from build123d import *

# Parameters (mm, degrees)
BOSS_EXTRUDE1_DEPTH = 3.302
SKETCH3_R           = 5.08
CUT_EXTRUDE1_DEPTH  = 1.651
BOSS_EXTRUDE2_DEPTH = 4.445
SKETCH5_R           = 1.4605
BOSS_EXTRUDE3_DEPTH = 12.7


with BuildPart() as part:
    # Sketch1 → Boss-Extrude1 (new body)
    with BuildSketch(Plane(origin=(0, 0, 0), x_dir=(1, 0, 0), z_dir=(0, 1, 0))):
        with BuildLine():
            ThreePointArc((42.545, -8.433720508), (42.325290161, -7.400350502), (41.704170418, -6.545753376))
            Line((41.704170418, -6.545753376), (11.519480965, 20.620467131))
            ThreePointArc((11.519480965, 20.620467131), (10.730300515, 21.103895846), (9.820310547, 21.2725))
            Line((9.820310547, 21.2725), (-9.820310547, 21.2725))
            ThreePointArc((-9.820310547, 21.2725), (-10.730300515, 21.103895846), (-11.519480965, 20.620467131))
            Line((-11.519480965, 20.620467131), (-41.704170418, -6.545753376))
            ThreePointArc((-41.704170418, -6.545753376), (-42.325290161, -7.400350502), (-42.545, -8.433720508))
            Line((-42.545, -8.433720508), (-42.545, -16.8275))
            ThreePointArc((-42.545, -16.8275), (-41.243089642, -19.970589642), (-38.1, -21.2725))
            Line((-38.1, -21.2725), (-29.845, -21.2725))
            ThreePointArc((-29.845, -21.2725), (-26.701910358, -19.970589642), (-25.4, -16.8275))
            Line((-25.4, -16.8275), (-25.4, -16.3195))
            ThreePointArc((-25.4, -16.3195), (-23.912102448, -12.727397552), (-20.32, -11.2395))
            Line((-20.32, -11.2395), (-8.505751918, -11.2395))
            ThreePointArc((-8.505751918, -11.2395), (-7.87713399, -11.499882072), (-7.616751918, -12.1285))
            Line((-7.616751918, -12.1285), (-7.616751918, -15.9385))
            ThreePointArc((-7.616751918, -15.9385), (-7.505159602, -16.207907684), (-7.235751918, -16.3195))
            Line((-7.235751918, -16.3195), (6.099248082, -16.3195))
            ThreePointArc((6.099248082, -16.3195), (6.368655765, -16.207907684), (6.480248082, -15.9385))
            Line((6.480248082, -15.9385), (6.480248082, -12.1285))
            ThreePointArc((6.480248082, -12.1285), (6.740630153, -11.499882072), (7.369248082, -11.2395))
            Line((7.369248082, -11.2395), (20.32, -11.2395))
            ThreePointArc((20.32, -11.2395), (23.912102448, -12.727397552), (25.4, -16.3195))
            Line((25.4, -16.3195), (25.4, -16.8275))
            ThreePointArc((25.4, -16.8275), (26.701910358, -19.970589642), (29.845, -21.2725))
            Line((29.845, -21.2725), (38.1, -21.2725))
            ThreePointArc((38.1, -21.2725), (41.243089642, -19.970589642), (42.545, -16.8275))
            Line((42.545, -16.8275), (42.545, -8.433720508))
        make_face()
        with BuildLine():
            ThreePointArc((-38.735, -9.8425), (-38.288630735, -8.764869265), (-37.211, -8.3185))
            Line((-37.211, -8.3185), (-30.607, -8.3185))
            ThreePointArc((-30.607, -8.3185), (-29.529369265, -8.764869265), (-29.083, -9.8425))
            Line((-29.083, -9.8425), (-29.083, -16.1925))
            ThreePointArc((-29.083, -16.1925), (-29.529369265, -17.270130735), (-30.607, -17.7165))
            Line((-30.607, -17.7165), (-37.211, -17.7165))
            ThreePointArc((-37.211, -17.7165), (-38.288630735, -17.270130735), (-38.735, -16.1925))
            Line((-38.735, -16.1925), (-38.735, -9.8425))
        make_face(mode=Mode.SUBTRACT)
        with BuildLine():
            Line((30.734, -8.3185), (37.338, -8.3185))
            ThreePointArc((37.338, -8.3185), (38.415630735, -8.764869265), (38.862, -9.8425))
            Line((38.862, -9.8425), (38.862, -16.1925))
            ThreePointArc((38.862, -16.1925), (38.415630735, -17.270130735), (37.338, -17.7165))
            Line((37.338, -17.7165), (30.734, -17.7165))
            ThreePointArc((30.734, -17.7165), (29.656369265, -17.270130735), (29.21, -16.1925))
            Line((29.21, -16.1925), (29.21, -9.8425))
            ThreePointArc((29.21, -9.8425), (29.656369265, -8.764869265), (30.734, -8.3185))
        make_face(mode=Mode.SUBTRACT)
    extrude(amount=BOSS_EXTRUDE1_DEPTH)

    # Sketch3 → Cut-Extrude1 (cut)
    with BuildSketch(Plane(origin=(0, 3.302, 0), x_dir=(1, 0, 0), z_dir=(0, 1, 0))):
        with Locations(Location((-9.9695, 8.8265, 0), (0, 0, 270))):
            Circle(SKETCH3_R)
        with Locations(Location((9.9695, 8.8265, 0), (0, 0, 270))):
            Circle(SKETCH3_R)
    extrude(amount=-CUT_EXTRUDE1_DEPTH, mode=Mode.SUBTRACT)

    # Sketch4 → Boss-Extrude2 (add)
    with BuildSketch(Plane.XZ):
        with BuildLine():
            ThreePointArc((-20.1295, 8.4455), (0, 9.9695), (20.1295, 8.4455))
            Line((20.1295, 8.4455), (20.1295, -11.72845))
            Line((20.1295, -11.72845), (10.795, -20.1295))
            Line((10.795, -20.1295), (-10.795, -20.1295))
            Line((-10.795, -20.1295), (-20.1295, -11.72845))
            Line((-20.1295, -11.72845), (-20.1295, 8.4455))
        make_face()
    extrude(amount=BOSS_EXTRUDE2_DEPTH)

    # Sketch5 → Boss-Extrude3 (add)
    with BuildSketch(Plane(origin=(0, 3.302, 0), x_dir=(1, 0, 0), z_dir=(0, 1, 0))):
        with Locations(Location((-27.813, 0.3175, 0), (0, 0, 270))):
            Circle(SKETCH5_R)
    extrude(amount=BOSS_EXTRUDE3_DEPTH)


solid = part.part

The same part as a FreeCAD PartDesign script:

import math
import FreeCAD as App
import Part
import Sketcher

V = App.Vector
Q = App.Units.Quantity

doc = App.newDocument("Part")
body = doc.addObject("PartDesign::Body", "Body")

sketch1 = body.newObject("Sketcher::SketchObject", "Sketch")
sketch1.AttachmentSupport = (doc.getObject("XZ_Plane"), [""])
sketch1.MapMode = "FlatFace"
sketch1.addGeometry(Part.ArcOfCircle(Part.Circle(V(40.01, 8.43, 0), V(0, 0, 1), 2.54), math.radians(-48), math.radians(0)), False)
sketch1.addGeometry(Part.LineSegment(V(41.7, 6.55, 0), V(11.52, -20.62, 0)), False)
sketch1.addGeometry(Part.ArcOfCircle(Part.Circle(V(9.82, -18.73, 0), V(0, 0, 1), 2.54), math.radians(-90), math.radians(-48)), False)
sketch1.addGeometry(Part.LineSegment(V(9.82, -21.27, 0), V(-9.82, -21.27, 0)), False)
sketch1.addGeometry(Part.ArcOfCircle(Part.Circle(V(-9.82, -18.73, 0), V(0, 0, 1), 2.54), math.radians(-132), math.radians(-90)), False)
sketch1.addGeometry(Part.LineSegment(V(-11.52, -20.62, 0), V(-41.7, 6.55, 0)), False)
sketch1.addGeometry(Part.ArcOfCircle(Part.Circle(V(-40.01, 8.43, 0), V(0, 0, 1), 2.54), math.radians(180), math.radians(228)), False)
sketch1.addGeometry(Part.LineSegment(V(-42.55, 8.43, 0), V(-42.55, 16.83, 0)), False)
sketch1.addGeometry(Part.ArcOfCircle(Part.Circle(V(-38.1, 16.83, 0), V(0, 0, 1), 4.45), math.radians(90), math.radians(180)), False)
sketch1.addGeometry(Part.LineSegment(V(-38.1, 21.27, 0), V(-29.84, 21.27, 0)), False)
sketch1.addGeometry(Part.ArcOfCircle(Part.Circle(V(-29.85, 16.83, 0), V(0, 0, 1), 4.45), math.radians(0), math.radians(90)), False)
sketch1.addGeometry(Part.LineSegment(V(-25.4, 16.83, 0), V(-25.4, 16.32, 0)), False)
sketch1.addGeometry(Part.ArcOfCircle(Part.Circle(V(-20.32, 16.32, 0), V(0, 0, 1), 5.08), math.radians(-180), math.radians(-90)), False)
sketch1.addGeometry(Part.LineSegment(V(-20.32, 11.24, 0), V(-8.51, 11.24, 0)), False)
sketch1.addGeometry(Part.ArcOfCircle(Part.Circle(V(-8.51, 12.13, 0), V(0, 0, 1), 0.89), math.radians(-90), math.radians(0)), False)
sketch1.addGeometry(Part.LineSegment(V(-7.62, 12.13, 0), V(-7.62, 15.94, 0)), False)
sketch1.addGeometry(Part.ArcOfCircle(Part.Circle(V(-7.24, 15.94, 0), V(0, 0, 1), 0.38), math.radians(90), math.radians(180)), False)
sketch1.addGeometry(Part.LineSegment(V(-7.24, 16.32, 0), V(6.1, 16.32, 0)), False)
sketch1.addGeometry(Part.ArcOfCircle(Part.Circle(V(6.1, 15.94, 0), V(0, 0, 1), 0.38), math.radians(0), math.radians(90)), False)
sketch1.addGeometry(Part.LineSegment(V(6.48, 15.94, 0), V(6.48, 12.13, 0)), False)
sketch1.addGeometry(Part.ArcOfCircle(Part.Circle(V(7.37, 12.13, 0), V(0, 0, 1), 0.89), math.radians(180), math.radians(270)), False)
sketch1.addGeometry(Part.LineSegment(V(7.37, 11.24, 0), V(20.32, 11.24, 0)), False)
sketch1.addGeometry(Part.ArcOfCircle(Part.Circle(V(20.32, 16.32, 0), V(0, 0, 1), 5.08), math.radians(-90), math.radians(0)), False)
sketch1.addGeometry(Part.LineSegment(V(25.4, 16.32, 0), V(25.4, 16.83, 0)), False)
sketch1.addGeometry(Part.ArcOfCircle(Part.Circle(V(29.85, 16.83, 0), V(0, 0, 1), 4.45), math.radians(90), math.radians(180)), False)
sketch1.addGeometry(Part.LineSegment(V(29.84, 21.27, 0), V(38.1, 21.27, 0)), False)
sketch1.addGeometry(Part.ArcOfCircle(Part.Circle(V(38.1, 16.83, 0), V(0, 0, 1), 4.45), math.radians(0), math.radians(90)), False)
sketch1.addGeometry(Part.LineSegment(V(42.55, 16.83, 0), V(42.55, 8.43, 0)), False)
sketch1.addGeometry(Part.ArcOfCircle(Part.Circle(V(30.73, 9.84, 0), V(0, 0, 1), 1.52), math.radians(180), math.radians(270)), False)
sketch1.addGeometry(Part.LineSegment(V(30.73, 8.32, 0), V(37.34, 8.32, 0)), False)
sketch1.addGeometry(Part.ArcOfCircle(Part.Circle(V(37.34, 9.84, 0), V(0, 0, 1), 1.52), math.radians(-90), math.radians(0)), False)
sketch1.addGeometry(Part.LineSegment(V(38.86, 9.84, 0), V(38.86, 16.19, 0)), False)
sketch1.addGeometry(Part.ArcOfCircle(Part.Circle(V(37.34, 16.19, 0), V(0, 0, 1), 1.52), math.radians(0), math.radians(90)), False)
sketch1.addGeometry(Part.LineSegment(V(37.34, 17.72, 0), V(30.73, 17.72, 0)), False)
sketch1.addGeometry(Part.ArcOfCircle(Part.Circle(V(30.73, 16.19, 0), V(0, 0, 1), 1.52), math.radians(90), math.radians(180)), False)
sketch1.addGeometry(Part.LineSegment(V(29.21, 16.19, 0), V(29.21, 9.84, 0)), False)
sketch1.addGeometry(Part.LineSegment(V(-38.73, 16.19, 0), V(-38.73, 9.84, 0)), False)
sketch1.addGeometry(Part.ArcOfCircle(Part.Circle(V(-37.21, 9.84, 0), V(0, 0, 1), 1.52), math.radians(180), math.radians(270)), False)
sketch1.addGeometry(Part.LineSegment(V(-37.21, 8.32, 0), V(-30.61, 8.32, 0)), False)
sketch1.addGeometry(Part.ArcOfCircle(Part.Circle(V(-30.61, 9.84, 0), V(0, 0, 1), 1.52), math.radians(-90), math.radians(0)), False)
sketch1.addGeometry(Part.LineSegment(V(-29.08, 9.84, 0), V(-29.08, 16.19, 0)), False)
sketch1.addGeometry(Part.ArcOfCircle(Part.Circle(V(-30.61, 16.19, 0), V(0, 0, 1), 1.52), math.radians(0), math.radians(90)), False)
sketch1.addGeometry(Part.LineSegment(V(-30.61, 17.72, 0), V(-37.21, 17.72, 0)), False)
sketch1.addGeometry(Part.ArcOfCircle(Part.Circle(V(-37.21, 16.19, 0), V(0, 0, 1), 1.52), math.radians(90), math.radians(180)), False)
sketch1.addConstraint(Sketcher.Constraint("Tangent", 0, 1, 1, 1))
sketch1.addConstraint(Sketcher.Constraint("Tangent", 1, 2, 2, 2))
sketch1.addConstraint(Sketcher.Constraint("Tangent", 2, 1, 3, 1))
sketch1.addConstraint(Sketcher.Constraint("Tangent", 3, 2, 4, 2))
sketch1.addConstraint(Sketcher.Constraint("Tangent", 4, 1, 5, 1))
sketch1.addConstraint(Sketcher.Constraint("Tangent", 5, 2, 6, 2))
sketch1.addConstraint(Sketcher.Constraint("Tangent", 6, 1, 7, 1))
sketch1.addConstraint(Sketcher.Constraint("Tangent", 7, 2, 8, 2))
sketch1.addConstraint(Sketcher.Constraint("Tangent", 8, 1, 9, 1))
sketch1.addConstraint(Sketcher.Constraint("Tangent", 9, 2, 10, 2))
sketch1.addConstraint(Sketcher.Constraint("Tangent", 10, 1, 11, 1))
sketch1.addConstraint(Sketcher.Constraint("Tangent", 11, 2, 12, 1))
sketch1.addConstraint(Sketcher.Constraint("Tangent", 12, 2, 13, 1))
sketch1.addConstraint(Sketcher.Constraint("Tangent", 13, 2, 14, 1))
sketch1.addConstraint(Sketcher.Constraint("Tangent", 14, 2, 15, 1))
sketch1.addConstraint(Sketcher.Constraint("Tangent", 15, 2, 16, 2))
sketch1.addConstraint(Sketcher.Constraint("Tangent", 16, 1, 17, 1))
sketch1.addConstraint(Sketcher.Constraint("Tangent", 17, 2, 18, 2))
sketch1.addConstraint(Sketcher.Constraint("Tangent", 18, 1, 19, 1))
sketch1.addConstraint(Sketcher.Constraint("Tangent", 19, 2, 20, 1))
sketch1.addConstraint(Sketcher.Constraint("Tangent", 20, 2, 21, 1))
sketch1.addConstraint(Sketcher.Constraint("Tangent", 21, 2, 22, 1))
sketch1.addConstraint(Sketcher.Constraint("Tangent", 22, 2, 23, 1))
sketch1.addConstraint(Sketcher.Constraint("Tangent", 23, 2, 24, 2))
sketch1.addConstraint(Sketcher.Constraint("Tangent", 24, 1, 25, 1))
sketch1.addConstraint(Sketcher.Constraint("Tangent", 25, 2, 26, 2))
sketch1.addConstraint(Sketcher.Constraint("Tangent", 26, 1, 27, 1))
sketch1.addConstraint(Sketcher.Constraint("Tangent", 27, 2, 0, 2))
sketch1.addConstraint(Sketcher.Constraint("Tangent", 28, 2, 29, 1))
sketch1.addConstraint(Sketcher.Constraint("Tangent", 29, 2, 30, 1))
sketch1.addConstraint(Sketcher.Constraint("Tangent", 30, 2, 31, 1))
sketch1.addConstraint(Sketcher.Constraint("Tangent", 31, 2, 32, 1))
sketch1.addConstraint(Sketcher.Constraint("Tangent", 32, 2, 33, 1))
sketch1.addConstraint(Sketcher.Constraint("Tangent", 33, 2, 34, 1))
sketch1.addConstraint(Sketcher.Constraint("Tangent", 34, 2, 35, 1))
sketch1.addConstraint(Sketcher.Constraint("Tangent", 35, 2, 28, 1))
sketch1.addConstraint(Sketcher.Constraint("Tangent", 36, 2, 37, 1))
sketch1.addConstraint(Sketcher.Constraint("Tangent", 37, 2, 38, 1))
sketch1.addConstraint(Sketcher.Constraint("Tangent", 38, 2, 39, 1))
sketch1.addConstraint(Sketcher.Constraint("Tangent", 39, 2, 40, 1))
sketch1.addConstraint(Sketcher.Constraint("Tangent", 40, 2, 41, 1))
sketch1.addConstraint(Sketcher.Constraint("Tangent", 41, 2, 42, 1))
sketch1.addConstraint(Sketcher.Constraint("Tangent", 42, 2, 43, 1))
sketch1.addConstraint(Sketcher.Constraint("Tangent", 43, 2, 36, 1))
sketch1.addConstraint(Sketcher.Constraint("Horizontal", 3))
sketch1.addConstraint(Sketcher.Constraint("Vertical", 7))
sketch1.addConstraint(Sketcher.Constraint("Horizontal", 9))
sketch1.addConstraint(Sketcher.Constraint("Vertical", 11))
sketch1.addConstraint(Sketcher.Constraint("Horizontal", 13))
sketch1.addConstraint(Sketcher.Constraint("Vertical", 15))
sketch1.addConstraint(Sketcher.Constraint("Horizontal", 17))
sketch1.addConstraint(Sketcher.Constraint("Vertical", 19))
sketch1.addConstraint(Sketcher.Constraint("Horizontal", 21))
sketch1.addConstraint(Sketcher.Constraint("Vertical", 23))
sketch1.addConstraint(Sketcher.Constraint("Horizontal", 25))
sketch1.addConstraint(Sketcher.Constraint("Vertical", 27))
sketch1.addConstraint(Sketcher.Constraint("Horizontal", 29))
sketch1.addConstraint(Sketcher.Constraint("Vertical", 31))
sketch1.addConstraint(Sketcher.Constraint("Horizontal", 33))
sketch1.addConstraint(Sketcher.Constraint("Vertical", 35))
sketch1.addConstraint(Sketcher.Constraint("Vertical", 36))
sketch1.addConstraint(Sketcher.Constraint("Horizontal", 38))
sketch1.addConstraint(Sketcher.Constraint("Vertical", 40))
sketch1.addConstraint(Sketcher.Constraint("Horizontal", 42))
sketch1.addConstraint(Sketcher.Constraint("Equal", 0, 2))
sketch1.addConstraint(Sketcher.Constraint("Equal", 2, 4))
sketch1.addConstraint(Sketcher.Constraint("Equal", 4, 6))
sketch1.addConstraint(Sketcher.Constraint("Equal", 8, 10))
sketch1.addConstraint(Sketcher.Constraint("Equal", 16, 18))
sketch1.addConstraint(Sketcher.Constraint("Equal", 14, 20))
sketch1.addConstraint(Sketcher.Constraint("Equal", 12, 22))
sketch1.addConstraint(Sketcher.Constraint("Equal", 10, 24))
sketch1.addConstraint(Sketcher.Constraint("Equal", 24, 26))
sketch1.addConstraint(Sketcher.Constraint("Equal", 28, 30))
sketch1.addConstraint(Sketcher.Constraint("Equal", 30, 32))
sketch1.addConstraint(Sketcher.Constraint("Equal", 32, 34))
sketch1.addConstraint(Sketcher.Constraint("Equal", 34, 37))
sketch1.addConstraint(Sketcher.Constraint("Equal", 37, 39))
sketch1.addConstraint(Sketcher.Constraint("Equal", 39, 41))
sketch1.addConstraint(Sketcher.Constraint("Equal", 41, 43))
sketch1.addConstraint(Sketcher.Constraint("Symmetric", 0, 3, 6, 3, -2))
sketch1.addConstraint(Sketcher.Constraint("Symmetric", 12, 3, 22, 3, -2))
sketch1.addConstraint(Sketcher.Constraint("Horizontal", 10, 3, 24, 3))
sketch1.addConstraint(Sketcher.Constraint("Horizontal", 30, 3, 37, 3))
sketch1.addConstraint(Sketcher.Constraint("Horizontal", 34, 3, 41, 3))
sketch1.addConstraint(Sketcher.Constraint("Horizontal", 1, 2, 4, 1))
sketch1.addConstraint(Sketcher.Constraint("Horizontal", 11, 2, 16, 1))
sketch1.addConstraint(Sketcher.Constraint("Equal", 33, 38))
sketch1.addConstraint(Sketcher.Constraint("Radius", 0, Q("0.1 in")))
sketch1.addConstraint(Sketcher.Constraint("Radius", 12, Q("0.2 in")))
sketch1.addConstraint(Sketcher.Constraint("Radius", 28, Q("0.06 in")))
sketch1.addConstraint(Sketcher.Constraint("DistanceX", 10, 1, -1, 1, Q("1 in")))
sketch1.addConstraint(Sketcher.Constraint("Radius", 8, Q("0.175 in")))
sketch1.addConstraint(Sketcher.Constraint("Radius", 14, Q("0.035 in")))
sketch1.addConstraint(Sketcher.Constraint("Radius", 16, Q("0.015 in")))
sketch1.addConstraint(Sketcher.Constraint("DistanceX", 29, 1, 29, 2, Q("0.26 in")))
sketch1.addConstraint(Sketcher.Constraint("DistanceY", 11, 2, 11, 1, Q("0.02 in")))
sketch1.addConstraint(Sketcher.Constraint("DistanceY", 31, 1, 31, 2, Q("0.25 in")))
sketch1.addConstraint(Sketcher.Constraint("DistanceX", 8, 3, -1, 1, Q("1.5 in")))
sketch1.addConstraint(Sketcher.Constraint("DistanceX", 17, 1, 17, 2, Q("0.525 in")))
sketch1.addConstraint(Sketcher.Constraint("DistanceX", -1, 1, 28, 3, Q("1.21 in")))
sketch1.addConstraint(Sketcher.Constraint("DistanceX", 37, 3, -1, 1, Q("1.465 in")))
sketch1.addConstraint(Sketcher.Constraint("DistanceY", 2, 3, -1, 1, Q("0.7375 in")))
sketch1.addConstraint(Sketcher.Constraint("DistanceY", -1, 1, 8, 3, Q("0.6625 in")))
sketch1.addConstraint(Sketcher.Constraint("DistanceY", -1, 1, 28, 3, Q("0.3875 in")))
sketch1.addConstraint(Sketcher.Constraint("DistanceX", 3, 2, 3, 1, 19.640621))
sketch1.addConstraint(Sketcher.Constraint("DistanceX", 13, 1, 13, 2, 11.814248))
sketch1.addConstraint(Sketcher.Constraint("DistanceY", 7, 1, 7, 2, 8.393779))
pad1 = body.newObject("PartDesign::Pad", "Pad")
pad1.Profile = sketch1
pad1.Length = Q("0.13 in")
pad1.Reversed = True

sketch2 = body.newObject("Sketcher::SketchObject", "Sketch001")
sketch2.AttachmentSupport = (doc.getObject("XZ_Plane"), [""])
sketch2.MapMode = "FlatFace"
sketch2.AttachmentOffset = App.Placement(V(0, 0, -0.13 * 25.4), App.Rotation())
sketch2.addGeometry(Part.Circle(V(-10, -9, 0), V(0, 0, 1), 5), False)
sketch2.addGeometry(Part.Circle(V(10, -9, 0), V(0, 0, 1), 5), False)
sketch2.addConstraint(Sketcher.Constraint("Equal", 0, 1))
sketch2.addConstraint(Sketcher.Constraint("Symmetric", 0, 3, 1, 3, -2))
sketch2.addConstraint(Sketcher.Constraint("Diameter", 0, Q("0.4 in")))
sketch2.addConstraint(Sketcher.Constraint("DistanceX", 0, 3, 1, 3, Q("0.785 in")))
sketch2.addConstraint(Sketcher.Constraint("DistanceY", 0, 3, -1, 1, Q("0.3475 in")))
pocket1 = body.newObject("PartDesign::Pocket", "Pocket")
pocket1.Profile = sketch2
pocket1.Length = Q("0.065 in")
pocket1.Reversed = True

sketch3 = body.newObject("Sketcher::SketchObject", "Sketch002")
sketch3.AttachmentSupport = (doc.getObject("XZ_Plane"), [""])
sketch3.MapMode = "FlatFace"
sketch3.addGeometry(Part.ArcOfCircle(Part.Circle(V(0, -124, 0), V(0, 0, 1), 134), math.radians(81.34), math.radians(98.66)), False)
sketch3.addGeometry(Part.LineSegment(V(-20, 8, 0), V(-20, -12, 0)), False)
sketch3.addGeometry(Part.LineSegment(V(-20, -12, 0), V(-11, -20, 0)), False)
sketch3.addGeometry(Part.LineSegment(V(-11, -20, 0), V(11, -20, 0)), False)
sketch3.addGeometry(Part.LineSegment(V(11, -20, 0), V(20, -12, 0)), False)
sketch3.addGeometry(Part.LineSegment(V(20, -12, 0), V(20, 8, 0)), False)
sketch3.addConstraint(Sketcher.Constraint("Coincident", 0, 2, 1, 1))
sketch3.addConstraint(Sketcher.Constraint("Coincident", 1, 2, 2, 1))
sketch3.addConstraint(Sketcher.Constraint("Coincident", 2, 2, 3, 1))
sketch3.addConstraint(Sketcher.Constraint("Coincident", 3, 2, 4, 1))
sketch3.addConstraint(Sketcher.Constraint("Coincident", 4, 2, 5, 1))
sketch3.addConstraint(Sketcher.Constraint("Coincident", 5, 2, 0, 1))
sketch3.addConstraint(Sketcher.Constraint("Vertical", 1))
sketch3.addConstraint(Sketcher.Constraint("Horizontal", 3))
sketch3.addConstraint(Sketcher.Constraint("Vertical", 5))
sketch3.addConstraint(Sketcher.Constraint("Symmetric", 1, 2, 4, 2, -2))
sketch3.addConstraint(Sketcher.Constraint("PointOnObject", 0, 3, -2))
sketch3.addConstraint(Sketcher.Constraint("Equal", 2, 4))
sketch3.addConstraint(Sketcher.Constraint("DistanceX", 3, 1, 3, 2, Q("0.85 in")))
sketch3.addConstraint(Sketcher.Constraint("DistanceY", 2, 2, 0, 2, Q("1.125 in")))
sketch3.addConstraint(Sketcher.Constraint("DistanceX", 1, 2, 4, 2, Q("1.585 in")))
sketch3.addConstraint(Sketcher.Constraint("DistanceY", -1, 1, 0, 2, Q("0.3325 in")))
sketch3.addConstraint(Sketcher.Constraint("Radius", 0, 133.700573))
sketch3.addConstraint(Sketcher.Constraint("DistanceY", 1, 2, 1, 1, 20.17395))
pad2 = body.newObject("PartDesign::Pad", "Pad001")
pad2.Profile = sketch3
pad2.Length = Q("0.175 in")

sketch4 = body.newObject("Sketcher::SketchObject", "Sketch003")
sketch4.AttachmentSupport = (doc.getObject("XZ_Plane"), [""])
sketch4.MapMode = "FlatFace"
sketch4.AttachmentOffset = App.Placement(V(0, 0, -0.13 * 25.4), App.Rotation())
sketch4.addGeometry(Part.Circle(V(-27.8, -0.3, 0), V(0, 0, 1), 1.5), False)
sketch4.addConstraint(Sketcher.Constraint("Diameter", 0, Q("0.115 in")))
sketch4.addConstraint(Sketcher.Constraint("DistanceX", 0, 3, -1, 1, Q("1.095 in")))
sketch4.addConstraint(Sketcher.Constraint("DistanceY", 0, 3, -1, 1, Q("0.0125 in")))
pad3 = body.newObject("PartDesign::Pad", "Pad002")
pad3.Profile = sketch4
pad3.Length = Q("0.5 in")
pad3.Reversed = True

doc.recompute()
